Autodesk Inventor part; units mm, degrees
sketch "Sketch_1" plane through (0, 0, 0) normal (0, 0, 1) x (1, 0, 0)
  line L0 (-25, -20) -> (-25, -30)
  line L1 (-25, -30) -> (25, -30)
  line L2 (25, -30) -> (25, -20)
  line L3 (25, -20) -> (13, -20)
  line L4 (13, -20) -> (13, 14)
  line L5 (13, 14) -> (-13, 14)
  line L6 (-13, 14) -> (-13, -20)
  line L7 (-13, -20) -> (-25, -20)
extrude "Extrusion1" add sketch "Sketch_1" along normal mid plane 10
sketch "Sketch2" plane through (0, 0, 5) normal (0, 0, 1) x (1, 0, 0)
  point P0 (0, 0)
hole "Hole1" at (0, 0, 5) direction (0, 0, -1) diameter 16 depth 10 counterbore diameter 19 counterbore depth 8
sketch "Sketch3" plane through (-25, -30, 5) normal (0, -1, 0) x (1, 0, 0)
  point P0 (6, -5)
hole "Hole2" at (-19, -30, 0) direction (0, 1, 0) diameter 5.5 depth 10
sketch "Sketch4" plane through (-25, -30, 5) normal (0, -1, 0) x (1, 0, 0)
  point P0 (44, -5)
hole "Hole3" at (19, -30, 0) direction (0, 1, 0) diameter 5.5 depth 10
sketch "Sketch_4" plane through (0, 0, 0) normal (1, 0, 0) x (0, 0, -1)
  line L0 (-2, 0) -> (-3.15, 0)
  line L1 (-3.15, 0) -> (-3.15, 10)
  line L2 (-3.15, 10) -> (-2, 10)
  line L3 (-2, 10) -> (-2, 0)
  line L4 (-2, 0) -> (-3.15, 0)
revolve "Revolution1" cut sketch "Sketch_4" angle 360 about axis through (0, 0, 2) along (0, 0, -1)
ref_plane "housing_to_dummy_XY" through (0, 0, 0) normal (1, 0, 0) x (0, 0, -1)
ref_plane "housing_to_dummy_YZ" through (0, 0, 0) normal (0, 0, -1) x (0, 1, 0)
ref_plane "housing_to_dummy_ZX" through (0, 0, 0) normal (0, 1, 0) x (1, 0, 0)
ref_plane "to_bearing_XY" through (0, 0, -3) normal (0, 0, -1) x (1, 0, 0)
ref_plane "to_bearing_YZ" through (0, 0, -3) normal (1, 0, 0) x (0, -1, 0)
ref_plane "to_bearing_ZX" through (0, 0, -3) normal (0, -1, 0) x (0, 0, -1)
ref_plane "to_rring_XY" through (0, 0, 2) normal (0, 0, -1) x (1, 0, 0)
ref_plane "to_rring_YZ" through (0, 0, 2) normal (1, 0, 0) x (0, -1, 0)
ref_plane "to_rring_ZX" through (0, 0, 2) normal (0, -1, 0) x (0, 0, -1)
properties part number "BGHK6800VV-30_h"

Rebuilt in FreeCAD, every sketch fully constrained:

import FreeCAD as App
import Part
import Sketcher
from FreeCAD import Vector
Q = App.Units.Quantity


def add_polygon(sketch, points):
    """Adds a closed chain of lines whose ends are joined by coincident constraints."""
    first, n = sketch.GeometryCount, len(points)
    for a, b in zip(points, points[1:] + points[:1]):
        sketch.addGeometry(Part.LineSegment(App.Vector(*a, 0), App.Vector(*b, 0)), False)
    for i in range(n):
        sketch.addConstraint(Sketcher.Constraint("Coincident", first + i, 2, first + (i + 1) % n, 1))

doc = App.newDocument("Part")
params = doc.addObject("Spreadsheet::Sheet", "Params")
for row, (alias, value) in enumerate([
    ("sketch1_width", "12 mm"),
    ("sketch1_width2", "50 mm"),
    ("sketch1_height", "10 mm"),
    ("sketch1_height2", "34 mm"),
    ("pad1_length", "10 mm"),
    ("sketch2_diameter", "16 mm"),
    ("hole_diameter", "16 mm"),
    ("hole_depth", "10 mm"),
    ("hole_cbore_diameter", "19 mm"),
    ("hole_cbore_depth", "8 mm"),
    ("sketch3_diameter", "5.5 mm"),
    ("hole2_diameter", "5.5 mm"),
    ("hole2_depth", "10 mm"),
    ("sketch4_diameter", "5.5 mm"),
    ("hole3_diameter", "5.5 mm"),
    ("hole3_depth", "10 mm"),
    ("sketch5_width", "10 mm"),
    ("sketch5_height", "1.15 mm"),
    ("groove_angle", "360 deg"),
], start=1):
    params.set(f"A{row}", alias)
    params.set(f"B{row}", "=" + value)
    params.setAlias(f"B{row}", alias)

body = doc.addObject("PartDesign::Body", "Body")

# Sketch on XY plane
sketch1 = body.newObject("Sketcher::SketchObject", "Sketch")
sketch1.AttachmentSupport = (doc.getObject("XY_Plane"), [""])
sketch1.MapMode = "FlatFace"
add_polygon(sketch1, [(-13, -20), (-25, -20), (-25, -30), (25, -30), (25, -20), (13, -20), (13, 14), (-13, 14)])  # lines 0-7
sketch1.addConstraint([
    Sketcher.Constraint("Horizontal", 0),
    Sketcher.Constraint("Vertical", 1),
    Sketcher.Constraint("Horizontal", 2),
    Sketcher.Constraint("Vertical", 3),
    Sketcher.Constraint("Horizontal", 4),
    Sketcher.Constraint("Vertical", 5),
    Sketcher.Constraint("Horizontal", 6),
    Sketcher.Constraint("Vertical", 7),
    Sketcher.Constraint("Symmetric", 0, 2, 3, 2, -2),
    Sketcher.Constraint("Equal", 0, 4),
    Sketcher.Constraint("DistanceX", 0, 2, 0, 1, Q("12 mm")),
    Sketcher.Constraint("DistanceX", 2, 1, 2, 2, Q("50 mm")),
    Sketcher.Constraint("DistanceY", 1, 2, 1, 1, Q("10 mm")),
    Sketcher.Constraint("DistanceY", 5, 1, 5, 2, Q("34 mm")),
    Sketcher.Constraint("DistanceY", 0, 2, -1, 1, Q("20 mm")),
])
sketch1.setExpression("Constraints[18]", "Params.sketch1_width")
sketch1.setExpression("Constraints[19]", "Params.sketch1_width2")
sketch1.setExpression("Constraints[20]", "Params.sketch1_height")
sketch1.setExpression("Constraints[21]", "Params.sketch1_height2")
pad1 = body.newObject("PartDesign::Pad", "Pad")
pad1.Profile = sketch1
pad1.setExpression("Length", "Params.pad1_length")
pad1.Midplane = True

# Sketch on XY plane
sketch2 = body.newObject("Sketcher::SketchObject", "Sketch001")
sketch2.AttachmentSupport = (doc.getObject("XY_Plane"), [""])
sketch2.MapMode = "FlatFace"
sketch2.AttachmentOffset = App.Placement(Vector(0, 0, 5), App.Rotation())
sketch2.addGeometry(Part.Circle(Vector(0, 0, 0), Vector(0, 0, 1), 8), False)
sketch2.addConstraint([
    Sketcher.Constraint("Coincident", 0, 3, -1, 1),
    Sketcher.Constraint("Diameter", 0, Q("16 mm")),
])
sketch2.setExpression("Constraints[1]", "Params.sketch2_diameter")
doc.recompute()
hole = body.newObject("PartDesign::Hole", "Hole")
hole.Profile = sketch2
hole.ThreadType = "None"
hole.setExpression("Diameter", "Params.hole_diameter")
hole.DepthType = "Dimension"
hole.setExpression("Depth", "Params.hole_depth")
hole.DrillPoint = "Flat"
hole.HoleCutType = "Counterbore"
hole.setExpression("HoleCutDiameter", "Params.hole_cbore_diameter")
hole.setExpression("HoleCutDepth", "Params.hole_cbore_depth")

# Sketch on XZ plane
sketch3 = body.newObject("Sketcher::SketchObject", "Sketch002")
sketch3.AttachmentSupport = (doc.getObject("XZ_Plane"), [""])
sketch3.MapMode = "FlatFace"
sketch3.AttachmentOffset = App.Placement(Vector(0, 0, 30), App.Rotation())
sketch3.addGeometry(Part.Circle(Vector(-19, 0, 0), Vector(0, 0, 1), 2.75), False)
sketch3.addConstraint([
    Sketcher.Constraint("PointOnObject", 0, 3, -1),
    Sketcher.Constraint("Diameter", 0, Q("5.5 mm")),
    Sketcher.Constraint("DistanceX", 0, 3, -1, 1, Q("19 mm")),
])
sketch3.setExpression("Constraints[1]", "Params.sketch3_diameter")
doc.recompute()
hole2 = body.newObject("PartDesign::Hole", "Hole001")
hole2.Profile = sketch3
hole2.ThreadType = "None"
hole2.setExpression("Diameter", "Params.hole2_diameter")
hole2.DepthType = "Dimension"
hole2.setExpression("Depth", "Params.hole2_depth")
hole2.DrillPoint = "Flat"

# Sketch on XZ plane
sketch4 = body.newObject("Sketcher::SketchObject", "Sketch003")
sketch4.AttachmentSupport = (doc.getObject("XZ_Plane"), [""])
sketch4.MapMode = "FlatFace"
sketch4.AttachmentOffset = App.Placement(Vector(0, 0, 30), App.Rotation())
sketch4.addGeometry(Part.Circle(Vector(19, 0, 0), Vector(0, 0, 1), 2.75), False)
sketch4.addConstraint([
    Sketcher.Constraint("PointOnObject", 0, 3, -1),
    Sketcher.Constraint("Diameter", 0, Q("5.5 mm")),
    Sketcher.Constraint("DistanceX", -1, 1, 0, 3, Q("19 mm")),
])
sketch4.setExpression("Constraints[1]", "Params.sketch4_diameter")
doc.recompute()
hole3 = body.newObject("PartDesign::Hole", "Hole002")
hole3.Profile = sketch4
hole3.ThreadType = "None"
hole3.setExpression("Diameter", "Params.hole3_diameter")
hole3.DepthType = "Dimension"
hole3.setExpression("Depth", "Params.hole3_depth")
hole3.DrillPoint = "Flat"

# Sketch on YZ plane
sketch5 = body.newObject("Sketcher::SketchObject", "Sketch004")
sketch5.AttachmentSupport = (doc.getObject("YZ_Plane"), [""])
sketch5.MapMode = "FlatFace"
add_polygon(sketch5, [(0, 3.15), (0, 2), (10, 2), (10, 3.15)])  # lines 0-3
sketch5.addConstraint([
    Sketcher.Constraint("Vertical", 0),
    Sketcher.Constraint("Horizontal", 1),
    Sketcher.Constraint("Vertical", 2),
    Sketcher.Constraint("Horizontal", 3),
    Sketcher.Constraint("PointOnObject", 0, 2, -2),
    Sketcher.Constraint("DistanceX", 1, 1, 1, 2, Q("10 mm")),
    Sketcher.Constraint("DistanceY", -1, 1, 0, 2, Q("2 mm")),
    Sketcher.Constraint("DistanceY", 0, 2, 0, 1, Q("1.15 mm")),
])
sketch5.setExpression("Constraints[9]", "Params.sketch5_width")
sketch5.setExpression("Constraints[11]", "Params.sketch5_height")
groove = body.newObject("PartDesign::Groove", "Groove")
groove.Profile = sketch5
groove.ReferenceAxis = (sketch5, ["V_Axis"])
groove.setExpression("Angle", "Params.groove_angle")

doc.recompute()
